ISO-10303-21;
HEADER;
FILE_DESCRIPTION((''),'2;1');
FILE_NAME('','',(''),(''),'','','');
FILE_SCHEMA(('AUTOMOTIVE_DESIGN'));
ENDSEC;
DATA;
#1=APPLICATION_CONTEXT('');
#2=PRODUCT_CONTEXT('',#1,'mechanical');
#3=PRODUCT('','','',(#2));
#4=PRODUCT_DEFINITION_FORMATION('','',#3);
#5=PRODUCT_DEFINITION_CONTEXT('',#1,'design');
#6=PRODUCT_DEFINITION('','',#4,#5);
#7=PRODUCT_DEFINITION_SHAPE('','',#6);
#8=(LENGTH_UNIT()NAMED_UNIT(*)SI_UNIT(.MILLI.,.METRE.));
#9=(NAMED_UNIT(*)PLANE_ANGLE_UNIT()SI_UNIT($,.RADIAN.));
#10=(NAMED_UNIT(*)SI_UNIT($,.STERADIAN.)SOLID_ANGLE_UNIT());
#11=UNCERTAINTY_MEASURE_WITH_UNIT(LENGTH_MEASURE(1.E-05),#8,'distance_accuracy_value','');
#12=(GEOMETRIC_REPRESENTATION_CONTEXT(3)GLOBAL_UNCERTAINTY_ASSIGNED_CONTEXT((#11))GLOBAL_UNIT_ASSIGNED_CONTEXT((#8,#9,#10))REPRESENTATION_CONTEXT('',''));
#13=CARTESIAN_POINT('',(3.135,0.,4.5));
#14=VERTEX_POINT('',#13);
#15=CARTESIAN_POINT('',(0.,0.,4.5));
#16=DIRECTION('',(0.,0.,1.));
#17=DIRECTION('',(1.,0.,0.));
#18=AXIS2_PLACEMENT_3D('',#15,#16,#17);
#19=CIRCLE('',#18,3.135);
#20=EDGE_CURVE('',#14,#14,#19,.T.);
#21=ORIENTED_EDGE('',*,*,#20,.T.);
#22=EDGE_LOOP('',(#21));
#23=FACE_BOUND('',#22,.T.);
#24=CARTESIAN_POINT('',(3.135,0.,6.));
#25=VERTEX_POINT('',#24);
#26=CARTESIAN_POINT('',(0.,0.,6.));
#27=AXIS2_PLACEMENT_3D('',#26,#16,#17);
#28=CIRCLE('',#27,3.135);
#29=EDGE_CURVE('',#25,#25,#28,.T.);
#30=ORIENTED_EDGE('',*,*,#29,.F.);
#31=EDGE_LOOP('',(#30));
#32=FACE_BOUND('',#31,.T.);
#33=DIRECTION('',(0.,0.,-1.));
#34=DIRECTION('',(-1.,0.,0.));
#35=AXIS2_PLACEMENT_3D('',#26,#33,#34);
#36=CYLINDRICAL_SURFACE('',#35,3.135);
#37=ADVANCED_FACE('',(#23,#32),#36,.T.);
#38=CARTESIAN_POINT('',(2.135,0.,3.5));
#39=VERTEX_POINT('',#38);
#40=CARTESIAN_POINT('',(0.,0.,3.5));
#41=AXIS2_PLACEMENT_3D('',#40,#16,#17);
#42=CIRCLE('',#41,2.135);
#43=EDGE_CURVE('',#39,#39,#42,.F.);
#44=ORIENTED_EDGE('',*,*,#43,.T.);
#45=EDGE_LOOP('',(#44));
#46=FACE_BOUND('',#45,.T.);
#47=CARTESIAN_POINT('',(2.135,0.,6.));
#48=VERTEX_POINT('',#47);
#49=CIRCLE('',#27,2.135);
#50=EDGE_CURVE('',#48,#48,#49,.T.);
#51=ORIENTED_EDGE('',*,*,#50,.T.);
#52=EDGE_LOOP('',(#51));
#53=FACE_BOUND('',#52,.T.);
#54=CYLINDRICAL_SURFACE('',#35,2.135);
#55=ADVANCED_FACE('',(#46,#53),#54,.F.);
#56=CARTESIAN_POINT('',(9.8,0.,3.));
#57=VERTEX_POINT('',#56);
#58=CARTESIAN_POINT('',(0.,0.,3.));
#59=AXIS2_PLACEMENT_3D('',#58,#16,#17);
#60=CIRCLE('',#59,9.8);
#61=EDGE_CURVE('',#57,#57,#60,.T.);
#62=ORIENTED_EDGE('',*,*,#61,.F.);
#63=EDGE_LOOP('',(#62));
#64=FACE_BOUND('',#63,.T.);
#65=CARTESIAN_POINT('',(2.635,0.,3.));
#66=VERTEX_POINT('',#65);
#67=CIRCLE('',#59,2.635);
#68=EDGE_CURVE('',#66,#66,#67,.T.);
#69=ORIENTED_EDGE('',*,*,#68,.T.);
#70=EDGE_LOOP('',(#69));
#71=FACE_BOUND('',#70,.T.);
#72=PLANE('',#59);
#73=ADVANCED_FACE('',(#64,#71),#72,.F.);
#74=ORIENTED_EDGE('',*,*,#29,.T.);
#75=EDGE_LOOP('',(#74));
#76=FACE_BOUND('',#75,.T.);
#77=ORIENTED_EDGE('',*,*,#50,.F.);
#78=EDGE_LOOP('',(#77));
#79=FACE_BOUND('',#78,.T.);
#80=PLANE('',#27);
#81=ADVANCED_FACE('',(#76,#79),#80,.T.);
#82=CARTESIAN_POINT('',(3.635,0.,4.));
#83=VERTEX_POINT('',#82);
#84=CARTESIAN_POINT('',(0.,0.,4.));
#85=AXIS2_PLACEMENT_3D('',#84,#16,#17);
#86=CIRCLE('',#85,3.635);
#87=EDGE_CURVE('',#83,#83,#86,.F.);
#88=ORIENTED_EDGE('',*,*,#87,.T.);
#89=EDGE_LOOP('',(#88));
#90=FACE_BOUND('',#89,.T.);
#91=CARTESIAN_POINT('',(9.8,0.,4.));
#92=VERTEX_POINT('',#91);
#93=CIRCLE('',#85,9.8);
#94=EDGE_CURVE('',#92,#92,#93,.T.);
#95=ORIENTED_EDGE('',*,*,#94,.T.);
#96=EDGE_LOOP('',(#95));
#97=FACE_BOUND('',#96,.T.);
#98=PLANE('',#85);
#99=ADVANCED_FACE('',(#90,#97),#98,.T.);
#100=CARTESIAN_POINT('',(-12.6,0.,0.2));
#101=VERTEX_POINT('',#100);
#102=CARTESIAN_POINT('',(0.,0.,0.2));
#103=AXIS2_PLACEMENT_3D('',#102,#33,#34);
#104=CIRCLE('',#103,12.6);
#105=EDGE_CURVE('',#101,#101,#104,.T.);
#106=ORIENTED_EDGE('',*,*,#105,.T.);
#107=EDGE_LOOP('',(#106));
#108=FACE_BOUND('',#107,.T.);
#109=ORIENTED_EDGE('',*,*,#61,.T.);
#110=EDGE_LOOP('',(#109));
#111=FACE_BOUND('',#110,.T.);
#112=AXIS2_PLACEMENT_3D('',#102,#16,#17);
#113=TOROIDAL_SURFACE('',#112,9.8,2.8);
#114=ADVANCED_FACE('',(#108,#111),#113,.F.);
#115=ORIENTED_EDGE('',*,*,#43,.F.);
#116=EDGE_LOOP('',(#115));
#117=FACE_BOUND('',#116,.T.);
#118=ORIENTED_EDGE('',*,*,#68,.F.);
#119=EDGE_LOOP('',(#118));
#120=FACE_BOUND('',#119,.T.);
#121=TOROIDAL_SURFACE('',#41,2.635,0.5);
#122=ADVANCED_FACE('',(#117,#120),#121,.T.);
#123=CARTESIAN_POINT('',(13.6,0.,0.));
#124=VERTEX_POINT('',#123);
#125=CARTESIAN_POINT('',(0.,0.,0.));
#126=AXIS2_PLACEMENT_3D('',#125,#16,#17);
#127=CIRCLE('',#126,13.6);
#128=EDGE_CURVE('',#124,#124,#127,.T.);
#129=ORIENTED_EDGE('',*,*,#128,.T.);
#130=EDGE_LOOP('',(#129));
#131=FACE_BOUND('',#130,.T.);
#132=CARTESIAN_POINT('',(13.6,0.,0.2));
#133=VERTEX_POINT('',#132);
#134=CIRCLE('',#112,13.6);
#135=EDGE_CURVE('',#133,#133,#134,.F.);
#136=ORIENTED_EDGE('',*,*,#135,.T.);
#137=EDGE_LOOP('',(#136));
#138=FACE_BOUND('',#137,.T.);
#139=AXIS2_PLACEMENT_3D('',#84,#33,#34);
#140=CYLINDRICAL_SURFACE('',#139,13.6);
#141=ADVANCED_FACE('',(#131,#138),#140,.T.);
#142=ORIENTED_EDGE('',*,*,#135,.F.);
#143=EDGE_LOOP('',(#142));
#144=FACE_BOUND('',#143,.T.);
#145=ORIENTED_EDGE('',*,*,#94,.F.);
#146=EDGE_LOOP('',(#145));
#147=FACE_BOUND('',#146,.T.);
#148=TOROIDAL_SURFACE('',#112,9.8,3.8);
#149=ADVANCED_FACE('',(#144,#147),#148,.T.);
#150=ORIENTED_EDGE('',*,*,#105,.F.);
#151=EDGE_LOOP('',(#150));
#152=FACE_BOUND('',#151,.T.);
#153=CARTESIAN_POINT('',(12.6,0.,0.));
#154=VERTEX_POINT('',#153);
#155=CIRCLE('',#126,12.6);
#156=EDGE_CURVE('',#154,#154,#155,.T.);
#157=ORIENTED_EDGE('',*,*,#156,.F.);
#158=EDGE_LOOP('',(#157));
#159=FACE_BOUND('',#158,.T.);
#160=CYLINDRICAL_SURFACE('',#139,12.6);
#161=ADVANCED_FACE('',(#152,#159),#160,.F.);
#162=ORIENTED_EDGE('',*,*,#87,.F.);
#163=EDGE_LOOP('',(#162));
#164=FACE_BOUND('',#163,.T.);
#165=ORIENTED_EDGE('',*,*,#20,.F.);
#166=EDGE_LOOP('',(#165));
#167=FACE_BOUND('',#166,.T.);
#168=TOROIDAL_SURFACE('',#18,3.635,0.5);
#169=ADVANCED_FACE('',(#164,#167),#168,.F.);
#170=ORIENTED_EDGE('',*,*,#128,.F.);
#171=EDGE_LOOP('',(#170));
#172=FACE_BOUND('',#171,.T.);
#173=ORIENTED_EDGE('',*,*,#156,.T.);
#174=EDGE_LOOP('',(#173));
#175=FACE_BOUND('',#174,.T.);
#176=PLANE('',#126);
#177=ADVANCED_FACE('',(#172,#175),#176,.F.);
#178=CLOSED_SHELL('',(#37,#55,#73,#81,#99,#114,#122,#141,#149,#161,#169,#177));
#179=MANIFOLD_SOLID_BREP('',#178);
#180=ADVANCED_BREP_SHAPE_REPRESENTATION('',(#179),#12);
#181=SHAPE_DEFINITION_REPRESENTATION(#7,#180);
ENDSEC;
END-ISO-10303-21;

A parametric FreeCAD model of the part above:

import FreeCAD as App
import Part
import Sketcher

V = App.Vector


def edges_at(feature, points):
    """Names of the edges that pass closest to the given points."""
    edges = feature.Shape.Edges
    near = lambda p: min(range(len(edges)), key=lambda i: edges[i].distToShape(Part.Vertex(*p))[0])
    return sorted({f"Edge{near(p) + 1}" for p in points})


def faces_at(feature, points):
    """Names of the faces that lie closest to the given points."""
    faces = feature.Shape.Faces
    near = lambda p: min(range(len(faces)), key=lambda i: faces[i].distToShape(Part.Vertex(*p))[0])
    return sorted({f"Face{near(p) + 1}" for p in points})

doc = App.newDocument("Part")
body = doc.addObject("PartDesign::Body", "Body")

# Sketch on XY plane
sketch1 = doc.addObject("Sketcher::SketchObject", "Sketch")
body.addObject(sketch1)
sketch1.AttachmentSupport = (doc.XY_Plane, [""])
sketch1.MapMode = "FlatFace"
sketch1.addGeometry(Part.Circle(V(0, 0, 0), V(0, 0, 1), 13.6), False)
sketch1.addConstraint([
    Sketcher.Constraint("Coincident", 0, 3, -1, 1),
    Sketcher.Constraint("Diameter", 0, 27.2),
])
pad1 = doc.addObject("PartDesign::Pad", "Pad")
body.addObject(pad1)
pad1.Profile = sketch1
pad1.Length = 4
doc.recompute()

fillet = doc.addObject("PartDesign::Fillet", "Fillet")
body.addObject(fillet)
fillet.Base = (pad1, edges_at(pad1, [(-13.6, 0, 4)]))
fillet.Radius = 3.8

# Sketch on XY plane
sketch2 = doc.addObject("Sketcher::SketchObject", "Sketch001")
body.addObject(sketch2)
sketch2.AttachmentSupport = (doc.XY_Plane, [""])
sketch2.MapMode = "FlatFace"
sketch2.AttachmentOffset = App.Placement(V(0, 0, 4), App.Rotation())
sketch2.addGeometry(Part.Circle(V(0, 0, 0), V(0, 0, 1), 3.135), False)
sketch2.addConstraint([
    Sketcher.Constraint("Coincident", 0, 3, -1, 1),
    Sketcher.Constraint("Diameter", 0, 6.27),
])
pad2 = doc.addObject("PartDesign::Pad", "Pad001")
body.addObject(pad2)
pad2.Profile = sketch2
pad2.Length = 2
doc.recompute()

thickness = doc.addObject("PartDesign::Thickness", "Thickness")
body.addObject(thickness)
thickness.Base = (pad2, faces_at(pad2, [(0, 0, 0)]))
thickness.Value = 1
thickness.Reversed = True
thickness.Join = "Intersection"

# Sketch on XY plane
sketch3 = doc.addObject("Sketcher::SketchObject", "Sketch002")
body.addObject(sketch3)
sketch3.AttachmentSupport = (doc.XY_Plane, [""])
sketch3.MapMode = "FlatFace"
sketch3.AttachmentOffset = App.Placement(V(0, 0, 6), App.Rotation())
sketch3.addGeometry(Part.Circle(V(0, 0, 0), V(0, 0, 1), 2.135), False)
sketch3.addConstraint([
    Sketcher.Constraint("Coincident", 0, 3, -1, 1),
    Sketcher.Constraint("Diameter", 0, 4.27),
])
pocket1 = doc.addObject("PartDesign::Pocket", "Pocket")
body.addObject(pocket1)
pocket1.Profile = sketch3
pocket1.Type = "UpToFirst"
doc.recompute()

fillet2 = doc.addObject("PartDesign::Fillet", "Fillet001")
body.addObject(fillet2)
fillet2.Base = (pocket1, edges_at(pocket1, [(-2.135, 0, 3), (-3.135, 0, 4)]))
fillet2.Radius = 0.5

doc.recompute()
